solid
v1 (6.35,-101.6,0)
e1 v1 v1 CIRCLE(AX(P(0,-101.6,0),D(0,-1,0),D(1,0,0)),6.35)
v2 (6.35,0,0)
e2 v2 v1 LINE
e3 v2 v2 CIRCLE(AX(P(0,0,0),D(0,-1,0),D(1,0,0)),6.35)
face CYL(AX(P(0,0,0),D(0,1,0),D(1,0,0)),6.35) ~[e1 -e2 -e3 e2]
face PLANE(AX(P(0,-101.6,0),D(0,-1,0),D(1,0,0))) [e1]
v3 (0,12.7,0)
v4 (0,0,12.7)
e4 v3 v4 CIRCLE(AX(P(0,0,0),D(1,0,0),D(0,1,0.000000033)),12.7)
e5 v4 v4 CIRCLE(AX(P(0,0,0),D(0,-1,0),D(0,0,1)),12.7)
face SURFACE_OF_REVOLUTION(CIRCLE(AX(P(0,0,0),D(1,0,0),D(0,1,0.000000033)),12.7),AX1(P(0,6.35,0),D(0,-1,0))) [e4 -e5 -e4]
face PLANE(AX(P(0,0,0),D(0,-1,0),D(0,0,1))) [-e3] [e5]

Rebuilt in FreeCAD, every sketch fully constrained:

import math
import FreeCAD as App
import Part
import Sketcher
Q = App.Units.Quantity

doc = App.newDocument("Part")
body = doc.addObject("PartDesign::Body", "Body")

# Sketch on XZ plane
sketch1 = body.newObject("Sketcher::SketchObject", "Sketch")
sketch1.AttachmentSupport = (doc.getObject("XZ_Plane"), [""])
sketch1.MapMode = "FlatFace"
sketch1.addGeometry(Part.Circle(App.Vector(0, 0, 0), App.Vector(0, 0, 1), 6), False)
sketch1.addConstraint([
    Sketcher.Constraint("Coincident", 0, 3, -1, 1),
    Sketcher.Constraint("Diameter", 0, Q("0.5 in")),
])
pad1 = body.newObject("PartDesign::Pad", "Pad")
pad1.Profile = sketch1
pad1.Length = Q("4 in")

# Sketch on YZ plane
sketch2 = body.newObject("Sketcher::SketchObject", "Sketch001")
sketch2.AttachmentSupport = (doc.getObject("YZ_Plane"), [""])
sketch2.MapMode = "FlatFace"
sketch2.addGeometry([
    Part.LineSegment(App.Vector(0, 0, 0), App.Vector(13, 0, 0)),
    Part.ArcOfCircle(Part.Circle(App.Vector(0, 0, 0), App.Vector(0, 0, 1), 13), math.radians(0), math.radians(90)),
    Part.LineSegment(App.Vector(0, 13, 0), App.Vector(0, 0, 0)),
], False)
sketch2.addConstraint([
    Sketcher.Constraint("Coincident", 0, 2, 1, 1),
    Sketcher.Constraint("Coincident", 1, 2, 2, 1),
    Sketcher.Constraint("Coincident", 2, 2, 0, 1),
    Sketcher.Constraint("Horizontal", 0),
    Sketcher.Constraint("Vertical", 2),
    Sketcher.Constraint("Coincident", 1, 3, -1, 1),
    Sketcher.Constraint("Coincident", 2, 2, -1, 1),
    Sketcher.Constraint("Radius", 1, Q("0.5 in")),
])
revolution = body.newObject("PartDesign::Revolution", "Revolution")
revolution.Profile = sketch2
revolution.ReferenceAxis = (sketch2, ["H_Axis"])
revolution.Angle = 360

doc.recompute()
